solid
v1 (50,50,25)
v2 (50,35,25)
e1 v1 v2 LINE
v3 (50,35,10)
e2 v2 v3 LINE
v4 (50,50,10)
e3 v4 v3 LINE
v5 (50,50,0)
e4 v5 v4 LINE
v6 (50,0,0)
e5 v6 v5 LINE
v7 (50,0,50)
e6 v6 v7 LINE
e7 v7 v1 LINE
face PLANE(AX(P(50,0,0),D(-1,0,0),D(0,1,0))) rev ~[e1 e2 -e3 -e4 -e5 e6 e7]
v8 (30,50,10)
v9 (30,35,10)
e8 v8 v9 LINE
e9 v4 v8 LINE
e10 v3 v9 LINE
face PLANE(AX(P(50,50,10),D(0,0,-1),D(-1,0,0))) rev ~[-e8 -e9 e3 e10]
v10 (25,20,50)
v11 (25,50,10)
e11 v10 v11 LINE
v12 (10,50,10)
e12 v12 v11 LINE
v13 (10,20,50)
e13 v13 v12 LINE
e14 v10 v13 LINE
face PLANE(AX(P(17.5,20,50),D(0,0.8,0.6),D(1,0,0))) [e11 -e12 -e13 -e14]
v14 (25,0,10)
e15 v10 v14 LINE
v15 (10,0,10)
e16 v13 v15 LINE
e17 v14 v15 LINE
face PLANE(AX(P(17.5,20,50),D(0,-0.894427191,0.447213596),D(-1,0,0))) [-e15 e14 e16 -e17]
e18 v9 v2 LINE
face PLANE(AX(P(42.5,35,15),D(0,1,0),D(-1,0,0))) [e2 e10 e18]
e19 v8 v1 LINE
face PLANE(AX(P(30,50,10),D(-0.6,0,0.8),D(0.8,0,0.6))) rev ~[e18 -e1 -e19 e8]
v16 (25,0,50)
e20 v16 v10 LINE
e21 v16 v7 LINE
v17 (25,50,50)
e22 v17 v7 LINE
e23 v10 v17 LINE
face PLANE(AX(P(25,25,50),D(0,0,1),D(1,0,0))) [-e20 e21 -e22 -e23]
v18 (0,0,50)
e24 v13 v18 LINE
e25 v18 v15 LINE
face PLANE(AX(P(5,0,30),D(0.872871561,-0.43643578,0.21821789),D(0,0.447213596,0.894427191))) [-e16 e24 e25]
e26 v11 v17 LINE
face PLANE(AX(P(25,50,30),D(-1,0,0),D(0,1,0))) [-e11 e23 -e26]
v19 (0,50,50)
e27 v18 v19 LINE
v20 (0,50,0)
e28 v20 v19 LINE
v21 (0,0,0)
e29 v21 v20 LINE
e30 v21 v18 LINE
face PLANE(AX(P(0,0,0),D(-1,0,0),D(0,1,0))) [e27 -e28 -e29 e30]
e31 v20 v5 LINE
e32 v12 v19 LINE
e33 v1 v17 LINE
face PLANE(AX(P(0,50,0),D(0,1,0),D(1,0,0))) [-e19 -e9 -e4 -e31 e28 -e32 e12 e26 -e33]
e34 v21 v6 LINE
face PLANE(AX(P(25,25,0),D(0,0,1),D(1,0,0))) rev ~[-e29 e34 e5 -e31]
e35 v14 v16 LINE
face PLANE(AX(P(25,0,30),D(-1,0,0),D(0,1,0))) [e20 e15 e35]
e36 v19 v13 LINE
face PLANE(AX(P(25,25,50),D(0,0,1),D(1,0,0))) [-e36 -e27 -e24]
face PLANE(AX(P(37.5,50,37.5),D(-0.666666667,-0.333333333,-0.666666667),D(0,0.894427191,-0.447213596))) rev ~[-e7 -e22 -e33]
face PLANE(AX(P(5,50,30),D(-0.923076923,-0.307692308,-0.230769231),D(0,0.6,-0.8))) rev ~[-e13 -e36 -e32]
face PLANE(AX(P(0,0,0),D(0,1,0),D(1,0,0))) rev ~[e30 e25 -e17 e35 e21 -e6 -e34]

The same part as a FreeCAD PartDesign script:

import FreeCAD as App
import Part
import Sketcher
Q = App.Units.Quantity

doc = App.newDocument("Part")
body = doc.addObject("PartDesign::Body", "Body")

sketch1 = doc.addObject("Sketcher::SketchObject", "Sketch")
body.addObject(sketch1)
sketch1.AttachmentSupport = (doc.XY_Plane, [""])
sketch1.MapMode = "FlatFace"
sketch1.addGeometry(Part.LineSegment(App.Vector(0, 50, 0), App.Vector(0, 0, 0)), False)
sketch1.addGeometry(Part.LineSegment(App.Vector(0, 0, 0), App.Vector(50, 0, 0)), False)
sketch1.addGeometry(Part.LineSegment(App.Vector(50, 0, 0), App.Vector(50, 50, 0)), False)
sketch1.addGeometry(Part.LineSegment(App.Vector(50, 50, 0), App.Vector(0, 50, 0)), False)
sketch1.addConstraint(Sketcher.Constraint("Coincident", 0, 2, 1, 1))
sketch1.addConstraint(Sketcher.Constraint("Coincident", 1, 2, 2, 1))
sketch1.addConstraint(Sketcher.Constraint("Coincident", 2, 2, 3, 1))
sketch1.addConstraint(Sketcher.Constraint("Coincident", 3, 2, 0, 1))
sketch1.addConstraint(Sketcher.Constraint("Vertical", 0))
sketch1.addConstraint(Sketcher.Constraint("Horizontal", 1))
sketch1.addConstraint(Sketcher.Constraint("Vertical", 2))
sketch1.addConstraint(Sketcher.Constraint("Horizontal", 3))
sketch1.addConstraint(Sketcher.Constraint("Coincident", 0, 2, -1, 1))
sketch1.addConstraint(Sketcher.Constraint("Equal", 3, 0))
sketch1.addConstraint(Sketcher.Constraint("DistanceX", 1, 1, 1, 2, Q("50 mm")))
pad1 = doc.addObject("PartDesign::Pad", "Pad")
body.addObject(pad1)
pad1.Profile = sketch1
pad1.Length = 50

sketch2 = doc.addObject("Sketcher::SketchObject", "Sketch001")
body.addObject(sketch2)
sketch2.AttachmentSupport = (doc.XZ_Plane, [""])
sketch2.MapMode = "FlatFace"
sketch2.AttachmentOffset = App.Placement(App.Vector(0, 0, -50), App.Rotation())
sketch2.addGeometry(Part.LineSegment(App.Vector(50, 25, 0), App.Vector(50, 10, 0)), False)
sketch2.addGeometry(Part.LineSegment(App.Vector(50, 10, 0), App.Vector(30, 10, 0)), False)
sketch2.addGeometry(Part.LineSegment(App.Vector(30, 10, 0), App.Vector(50, 25, 0)), False)
sketch2.addConstraint(Sketcher.Constraint("Coincident", 0, 2, 1, 1))
sketch2.addConstraint(Sketcher.Constraint("Coincident", 1, 2, 2, 1))
sketch2.addConstraint(Sketcher.Constraint("Coincident", 2, 2, 0, 1))
sketch2.addConstraint(Sketcher.Constraint("Vertical", 0))
sketch2.addConstraint(Sketcher.Constraint("Horizontal", 1))
sketch2.addConstraint(Sketcher.Constraint("DistanceX", 1, 2, 1, 1, Q("20 mm")))
sketch2.addConstraint(Sketcher.Constraint("DistanceY", 0, 2, 0, 1, Q("15 mm")))
sketch2.addConstraint(Sketcher.Constraint("DistanceX", -1, 1, 0, 2, Q("50 mm")))
sketch2.addConstraint(Sketcher.Constraint("DistanceY", -1, 1, 0, 2, Q("10 mm")))
pocket1 = doc.addObject("PartDesign::Pocket", "Pocket")
body.addObject(pocket1)
pocket1.Profile = sketch2
pocket1.Length = 15
pocket1.Reversed = True

sketch3 = doc.addObject("Sketcher::SketchObject", "Sketch002")
body.addObject(sketch3)
sketch3.AttachmentSupport = (doc.XY_Plane, [""])
sketch3.MapMode = "FlatFace"
sketch3.AttachmentOffset = App.Placement(App.Vector(0, 0, 50), App.Rotation())
sketch3.addGeometry(Part.LineSegment(App.Vector(10, 20, 0), App.Vector(10, 0, 0)), False)
sketch3.addGeometry(Part.LineSegment(App.Vector(10, 0, 0), App.Vector(25, 0, 0)), False)
sketch3.addGeometry(Part.LineSegment(App.Vector(25, 0, 0), App.Vector(25, 20, 0)), False)
sketch3.addGeometry(Part.LineSegment(App.Vector(25, 20, 0), App.Vector(10, 20, 0)), False)
sketch3.addConstraint(Sketcher.Constraint("Coincident", 0, 2, 1, 1))
sketch3.addConstraint(Sketcher.Constraint("Coincident", 1, 2, 2, 1))
sketch3.addConstraint(Sketcher.Constraint("Coincident", 2, 2, 3, 1))
sketch3.addConstraint(Sketcher.Constraint("Coincident", 3, 2, 0, 1))
sketch3.addConstraint(Sketcher.Constraint("Vertical", 0))
sketch3.addConstraint(Sketcher.Constraint("Horizontal", 1))
sketch3.addConstraint(Sketcher.Constraint("Vertical", 2))
sketch3.addConstraint(Sketcher.Constraint("Horizontal", 3))
sketch3.addConstraint(Sketcher.Constraint("PointOnObject", 0, 2, -1))
sketch3.addConstraint(Sketcher.Constraint("DistanceX", 1, 1, 1, 2, Q("15 mm")))
sketch3.addConstraint(Sketcher.Constraint("DistanceY", 0, 2, 0, 1, Q("20 mm")))
sketch3.addConstraint(Sketcher.Constraint("DistanceX", -1, 1, 0, 2, Q("10 mm")))

sketch4 = doc.addObject("Sketcher::SketchObject", "Sketch003")
body.addObject(sketch4)
sketch4.Placement = App.Placement(App.Vector(0, -4, 2), App.Rotation(App.Vector(0, 0.447213595, 0.894427191), App.Vector(1, 0, 0), App.Vector(0, 0.894427191, -0.447213595), "ZXY"))
sketch4.addGeometry(Part.LineSegment(App.Vector(54, 0, 0), App.Vector(9, 0, 0)), False)
sketch4.addConstraint(Sketcher.Constraint("Horizontal", 0))
sketch4.addConstraint(Sketcher.Constraint("PointOnObject", 0, 1, -1))
sketch4.addConstraint(Sketcher.Constraint("DistanceX", 0, 2, 0, 1, Q("44.72136 mm")))
sketch4.addConstraint(Sketcher.Constraint("DistanceX", -1, 1, 0, 1, Q("53.665631 mm")))
doc.recompute()

subtractivepipe = doc.addObject("PartDesign::SubtractivePipe", "SubtractivePipe")
body.addObject(subtractivepipe)
subtractivepipe.Profile = sketch3
subtractivepipe.Spine = (sketch4, ["Edge1"])

sketch5 = doc.addObject("Sketcher::SketchObject", "Sketch004")
body.addObject(sketch5)
sketch5.AttachmentSupport = (doc.XY_Plane, [""])
sketch5.MapMode = "FlatFace"
sketch5.AttachmentOffset = App.Placement(App.Vector(0, 0, 50), App.Rotation())
sketch5.addGeometry(Part.LineSegment(App.Vector(10, 50, 0), App.Vector(10, 20, 0)), False)
sketch5.addGeometry(Part.LineSegment(App.Vector(10, 20, 0), App.Vector(25, 20, 0)), False)
sketch5.addGeometry(Part.LineSegment(App.Vector(25, 20, 0), App.Vector(25, 50, 0)), False)
sketch5.addGeometry(Part.LineSegment(App.Vector(25, 50, 0), App.Vector(10, 50, 0)), False)
sketch5.addConstraint(Sketcher.Constraint("Coincident", 0, 2, 1, 1))
sketch5.addConstraint(Sketcher.Constraint("Coincident", 1, 2, 2, 1))
sketch5.addConstraint(Sketcher.Constraint("Coincident", 2, 2, 3, 1))
sketch5.addConstraint(Sketcher.Constraint("Coincident", 3, 2, 0, 1))
sketch5.addConstraint(Sketcher.Constraint("Vertical", 0))
sketch5.addConstraint(Sketcher.Constraint("Horizontal", 1))
sketch5.addConstraint(Sketcher.Constraint("Vertical", 2))
sketch5.addConstraint(Sketcher.Constraint("Horizontal", 3))
sketch5.addConstraint(Sketcher.Constraint("DistanceX", 1, 1, 1, 2, Q("15 mm")))
sketch5.addConstraint(Sketcher.Constraint("DistanceY", 0, 2, 0, 1, Q("30 mm")))
sketch5.addConstraint(Sketcher.Constraint("DistanceX", -1, 1, 0, 2, Q("10 mm")))
sketch5.addConstraint(Sketcher.Constraint("DistanceY", -1, 1, 0, 2, Q("20 mm")))

sketch6 = doc.addObject("Sketcher::SketchObject", "Sketch005")
body.addObject(sketch6)
sketch6.Placement = App.Placement(App.Vector(0, 36.8, 27.6), App.Rotation(App.Vector(0, 0.6, -0.8), App.Vector(1, 0, 0), App.Vector(0, -0.8, -0.6), "ZXY"))
sketch6.addGeometry(Part.LineSegment(App.Vector(-28, 0, 0), App.Vector(22, 0, 0)), False)
sketch6.addConstraint(Sketcher.Constraint("Horizontal", 0))
sketch6.addConstraint(Sketcher.Constraint("PointOnObject", 0, 1, -1))
sketch6.addConstraint(Sketcher.Constraint("DistanceX", 0, 1, 0, 2, Q("50 mm")))
sketch6.addConstraint(Sketcher.Constraint("DistanceX", 0, 1, -1, 1, Q("28 mm")))
doc.recompute()

subtractivepipe2 = doc.addObject("PartDesign::SubtractivePipe", "SubtractivePipe001")
body.addObject(subtractivepipe2)
subtractivepipe2.Profile = sketch5
subtractivepipe2.Spine = (sketch6, ["Edge1"])

sketch7 = doc.addObject("Sketcher::SketchObject", "Sketch006")
body.addObject(sketch7)
sketch7.AttachmentSupport = (doc.YZ_Plane, [""])
sketch7.MapMode = "FlatFace"
sketch7.AttachmentOffset = App.Placement(App.Vector(0, 0, 10), App.Rotation())
sketch7.addGeometry(Part.LineSegment(App.Vector(0, 10, 0), App.Vector(20, 50, 0)), False)
sketch7.addGeometry(Part.LineSegment(App.Vector(20, 50, 0), App.Vector(0, 50, 0)), False)
sketch7.addGeometry(Part.LineSegment(App.Vector(0, 50, 0), App.Vector(0, 10, 0)), False)
sketch7.addConstraint(Sketcher.Constraint("Coincident", 0, 2, 1, 1))
sketch7.addConstraint(Sketcher.Constraint("Coincident", 1, 2, 2, 1))
sketch7.addConstraint(Sketcher.Constraint("Coincident", 2, 2, 0, 1))
sketch7.addConstraint(Sketcher.Constraint("Horizontal", 1))
sketch7.addConstraint(Sketcher.Constraint("Vertical", 2))
sketch7.addConstraint(Sketcher.Constraint("PointOnObject", 1, 2, -2))
sketch7.addConstraint(Sketcher.Constraint("DistanceX", 1, 2, 1, 1, Q("20 mm")))
sketch7.addConstraint(Sketcher.Constraint("DistanceY", 2, 2, 2, 1, Q("40 mm")))
sketch7.addConstraint(Sketcher.Constraint("DistanceY", -1, 1, 0, 2, Q("50 mm")))

sketch8 = doc.addObject("Sketcher::SketchObject", "Sketch007")
body.addObject(sketch8)
sketch8.Placement = App.Placement(App.Vector(0, 0, 0), App.Rotation(App.Vector(-0.447213595, -0.894427191, 0), App.Vector(0, 0, 1), App.Vector(-0.894427191, 0.447213595, 0), "ZXY"))
sketch8.addGeometry(Part.LineSegment(App.Vector(-22, 50, 0), App.Vector(0, 50, 0)), False)
sketch8.addConstraint(Sketcher.Constraint("Horizontal", 0))
sketch8.addConstraint(Sketcher.Constraint("PointOnObject", 0, 2, -2))
sketch8.addConstraint(Sketcher.Constraint("DistanceY", -1, 1, 0, 1, Q("50 mm")))
sketch8.addConstraint(Sketcher.Constraint("DistanceX", 0, 1, 0, 2, Q("22.36068 mm")))
doc.recompute()

subtractivepipe3 = doc.addObject("PartDesign::SubtractivePipe", "SubtractivePipe002")
body.addObject(subtractivepipe3)
subtractivepipe3.Profile = sketch7
subtractivepipe3.Spine = (sketch8, ["Edge1"])

sketch9 = doc.addObject("Sketcher::SketchObject", "Sketch008")
body.addObject(sketch9)
sketch9.AttachmentSupport = (doc.YZ_Plane, [""])
sketch9.MapMode = "FlatFace"
sketch9.AttachmentOffset = App.Placement(App.Vector(0, 0, 10), App.Rotation())
sketch9.addGeometry(Part.LineSegment(App.Vector(50, 10, 0), App.Vector(50, 50, 0)), False)
sketch9.addGeometry(Part.LineSegment(App.Vector(50, 50, 0), App.Vector(20, 50, 0)), False)
sketch9.addGeometry(Part.LineSegment(App.Vector(20, 50, 0), App.Vector(50, 10, 0)), False)
sketch9.addConstraint(Sketcher.Constraint("Coincident", 0, 2, 1, 1))
sketch9.addConstraint(Sketcher.Constraint("Coincident", 1, 2, 2, 1))
sketch9.addConstraint(Sketcher.Constraint("Coincident", 2, 2, 0, 1))
sketch9.addConstraint(Sketcher.Constraint("Vertical", 0))
sketch9.addConstraint(Sketcher.Constraint("Horizontal", 1))
sketch9.addConstraint(Sketcher.Constraint("DistanceX", 1, 2, 1, 1, Q("30 mm")))
sketch9.addConstraint(Sketcher.Constraint("DistanceY", 0, 1, 0, 2, Q("40 mm")))
sketch9.addConstraint(Sketcher.Constraint("DistanceX", -1, 1, 0, 2, Q("50 mm")))
sketch9.addConstraint(Sketcher.Constraint("DistanceY", -1, 1, 0, 2, Q("50 mm")))

sketch10 = doc.addObject("Sketcher::SketchObject", "Sketch009")
body.addObject(sketch10)
sketch10.Placement = App.Placement(App.Vector(15, 5, 0), App.Rotation(App.Vector(0.316227766, -0.948683298, 0), App.Vector(0, 0, 1), App.Vector(-0.948683298, -0.316227766, 0), "ZXY"))
sketch10.addGeometry(Part.LineSegment(App.Vector(-47, 50, 0), App.Vector(-16, 50, 0)), False)
sketch10.addConstraint(Sketcher.Constraint("Horizontal", 0))
sketch10.addConstraint(Sketcher.Constraint("DistanceY", -1, 1, 0, 1, Q("50 mm")))
sketch10.addConstraint(Sketcher.Constraint("DistanceX", 0, 1, 0, 2, Q("31.622777 mm")))
sketch10.addConstraint(Sketcher.Constraint("DistanceX", 0, 2, -1, 1, Q("15.811388 mm")))
doc.recompute()

subtractivepipe4 = doc.addObject("PartDesign::SubtractivePipe", "SubtractivePipe003")
body.addObject(subtractivepipe4)
subtractivepipe4.Profile = sketch9
subtractivepipe4.Spine = (sketch10, ["Edge1"])

sketch11 = doc.addObject("Sketcher::SketchObject", "Sketch010")
body.addObject(sketch11)
sketch11.AttachmentSupport = (doc.YZ_Plane, [""])
sketch11.MapMode = "FlatFace"
sketch11.AttachmentOffset = App.Placement(App.Vector(0, 0, 50), App.Rotation())
sketch11.addGeometry(Part.LineSegment(App.Vector(50, 50, 0), App.Vector(0, 50, 0)), False)
sketch11.addGeometry(Part.LineSegment(App.Vector(0, 50, 0), App.Vector(50, 25, 0)), False)
sketch11.addGeometry(Part.LineSegment(App.Vector(50, 25, 0), App.Vector(50, 50, 0)), False)
sketch11.addConstraint(Sketcher.Constraint("Coincident", 0, 2, 1, 1))
sketch11.addConstraint(Sketcher.Constraint("Coincident", 1, 2, 2, 1))
sketch11.addConstraint(Sketcher.Constraint("Coincident", 2, 2, 0, 1))
sketch11.addConstraint(Sketcher.Constraint("Horizontal", 0))
sketch11.addConstraint(Sketcher.Constraint("Vertical", 2))
sketch11.addConstraint(Sketcher.Constraint("PointOnObject", 0, 2, -2))
sketch11.addConstraint(Sketcher.Constraint("DistanceX", 0, 2, 0, 1, Q("50 mm")))
sketch11.addConstraint(Sketcher.Constraint("DistanceY", 2, 1, 2, 2, Q("25 mm")))
sketch11.addConstraint(Sketcher.Constraint("DistanceY", -1, 1, 0, 2, Q("50 mm")))

sketch12 = doc.addObject("Sketcher::SketchObject", "Sketch011")
body.addObject(sketch12)
sketch12.Placement = App.Placement(App.Vector(40, 20, 0), App.Rotation(App.Vector(0.447213595, -0.894427191, 0), App.Vector(0, 0, 1), App.Vector(-0.894427191, -0.447213595, 0), "ZXY"))
sketch12.addGeometry(Part.LineSegment(App.Vector(-34, 50, 0), App.Vector(22, 50, 0)), False)
sketch12.addConstraint(Sketcher.Constraint("Horizontal", 0))
sketch12.addConstraint(Sketcher.Constraint("DistanceY", -1, 1, 0, 1, Q("50 mm")))
sketch12.addConstraint(Sketcher.Constraint("DistanceX", 0, 1, 0, 2, Q("55.901699 mm")))
sketch12.addConstraint(Sketcher.Constraint("DistanceX", 0, 1, -1, 1, Q("33.54102 mm")))
doc.recompute()

subtractivepipe5 = doc.addObject("PartDesign::SubtractivePipe", "SubtractivePipe004")
body.addObject(subtractivepipe5)
subtractivepipe5.Profile = sketch11
subtractivepipe5.Spine = (sketch12, ["Edge1"])

doc.recompute()
